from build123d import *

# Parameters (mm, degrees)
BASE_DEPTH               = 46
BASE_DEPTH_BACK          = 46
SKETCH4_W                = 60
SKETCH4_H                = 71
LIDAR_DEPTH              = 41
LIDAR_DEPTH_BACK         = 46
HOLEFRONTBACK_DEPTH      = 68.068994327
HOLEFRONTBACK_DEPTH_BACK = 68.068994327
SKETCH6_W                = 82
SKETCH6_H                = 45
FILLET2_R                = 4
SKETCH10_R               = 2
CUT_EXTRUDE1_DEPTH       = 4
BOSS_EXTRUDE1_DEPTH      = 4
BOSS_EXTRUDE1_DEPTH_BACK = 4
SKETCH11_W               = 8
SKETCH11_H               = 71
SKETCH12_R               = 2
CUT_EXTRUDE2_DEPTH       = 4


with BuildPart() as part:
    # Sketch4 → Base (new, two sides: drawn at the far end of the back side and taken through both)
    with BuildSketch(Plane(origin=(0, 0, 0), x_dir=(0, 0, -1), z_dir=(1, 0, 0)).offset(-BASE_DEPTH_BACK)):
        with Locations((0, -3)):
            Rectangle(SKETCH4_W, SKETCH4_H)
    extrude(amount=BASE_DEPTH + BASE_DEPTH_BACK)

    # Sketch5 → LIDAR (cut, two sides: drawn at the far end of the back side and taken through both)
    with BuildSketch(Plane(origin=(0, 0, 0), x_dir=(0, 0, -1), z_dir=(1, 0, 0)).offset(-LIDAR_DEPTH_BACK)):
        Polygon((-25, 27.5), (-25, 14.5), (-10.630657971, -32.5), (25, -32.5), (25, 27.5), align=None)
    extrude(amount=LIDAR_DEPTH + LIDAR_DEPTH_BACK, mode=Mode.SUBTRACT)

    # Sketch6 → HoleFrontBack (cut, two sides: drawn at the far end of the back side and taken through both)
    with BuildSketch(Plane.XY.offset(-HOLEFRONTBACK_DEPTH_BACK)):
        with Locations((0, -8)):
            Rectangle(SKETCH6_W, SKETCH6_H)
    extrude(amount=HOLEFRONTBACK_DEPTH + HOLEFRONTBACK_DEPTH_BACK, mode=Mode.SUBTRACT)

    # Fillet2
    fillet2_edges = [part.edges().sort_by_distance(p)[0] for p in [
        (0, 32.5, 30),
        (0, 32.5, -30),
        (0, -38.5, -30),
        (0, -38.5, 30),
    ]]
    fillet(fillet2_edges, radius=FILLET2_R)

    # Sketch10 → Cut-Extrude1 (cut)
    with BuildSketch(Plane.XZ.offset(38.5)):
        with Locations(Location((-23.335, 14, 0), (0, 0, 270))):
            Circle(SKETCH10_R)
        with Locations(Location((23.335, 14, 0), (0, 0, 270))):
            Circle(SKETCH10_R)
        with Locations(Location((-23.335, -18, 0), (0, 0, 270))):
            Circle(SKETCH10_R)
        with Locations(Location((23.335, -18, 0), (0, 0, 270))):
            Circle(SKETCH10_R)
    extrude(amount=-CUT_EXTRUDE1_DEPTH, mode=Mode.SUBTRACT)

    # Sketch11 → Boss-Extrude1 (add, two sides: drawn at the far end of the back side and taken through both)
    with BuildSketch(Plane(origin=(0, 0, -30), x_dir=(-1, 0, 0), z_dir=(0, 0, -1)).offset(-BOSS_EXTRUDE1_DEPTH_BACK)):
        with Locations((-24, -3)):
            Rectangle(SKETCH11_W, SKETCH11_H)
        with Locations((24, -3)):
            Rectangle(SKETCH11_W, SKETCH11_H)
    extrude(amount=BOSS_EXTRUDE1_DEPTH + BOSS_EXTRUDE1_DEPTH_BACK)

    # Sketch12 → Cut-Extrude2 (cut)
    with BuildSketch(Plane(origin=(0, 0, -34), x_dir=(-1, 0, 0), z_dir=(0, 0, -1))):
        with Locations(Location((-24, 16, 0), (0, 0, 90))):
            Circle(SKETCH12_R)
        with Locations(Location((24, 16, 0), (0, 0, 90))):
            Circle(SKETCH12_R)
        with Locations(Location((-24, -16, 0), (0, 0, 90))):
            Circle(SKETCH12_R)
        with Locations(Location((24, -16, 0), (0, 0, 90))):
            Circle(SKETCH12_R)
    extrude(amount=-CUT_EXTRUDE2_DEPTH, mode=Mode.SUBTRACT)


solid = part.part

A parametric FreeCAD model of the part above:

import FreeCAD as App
import Part
import Sketcher
Q = App.Units.Quantity


def edges_at(feature, points):
    """Names of the edges that pass closest to the given points."""
    edges = feature.Shape.Edges
    near = lambda p: min(range(len(edges)), key=lambda i: edges[i].distToShape(Part.Vertex(*p))[0])
    return sorted({f"Edge{near(p) + 1}" for p in points})


def add_polygon(sketch, points):
    """Adds a closed chain of lines whose ends are joined by coincident constraints."""
    first, n = sketch.GeometryCount, len(points)
    for a, b in zip(points, points[1:] + points[:1]):
        sketch.addGeometry(Part.LineSegment(App.Vector(*a, 0), App.Vector(*b, 0)), False)
    for i in range(n):
        sketch.addConstraint(Sketcher.Constraint("Coincident", first + i, 2, first + (i + 1) % n, 1))

doc = App.newDocument("Part")
body = doc.addObject("PartDesign::Body", "Body")

# Sketch on YZ plane
sketch1 = body.newObject("Sketcher::SketchObject", "Sketch")
sketch1.AttachmentSupport = (doc.getObject("YZ_Plane"), [""])
sketch1.MapMode = "FlatFace"
add_polygon(sketch1, [(32, 30), (-38, 30), (-38, -30), (32, -30)])  # lines 0-3
sketch1.addConstraint(Sketcher.Constraint("Horizontal", 0))
sketch1.addConstraint(Sketcher.Constraint("Vertical", 1))
sketch1.addConstraint(Sketcher.Constraint("Horizontal", 2))
sketch1.addConstraint(Sketcher.Constraint("Vertical", 3))
sketch1.addConstraint(Sketcher.Constraint("DistanceX", 0, 2, 0, 1, 71.0))
sketch1.addConstraint(Sketcher.Constraint("DistanceY", 1, 2, 1, 1, 60.0))
sketch1.addConstraint(Sketcher.Constraint("DistanceY", -1, 1, 0, 2, 30.0))
sketch1.addConstraint(Sketcher.Constraint("DistanceX", 0, 2, -1, 1, 38.5))
pad1 = body.newObject("PartDesign::Pad", "Pad")
pad1.Profile = sketch1
pad1.Type = "TwoLengths"
pad1.Length = 46
pad1.Length2 = 46

# Sketch on YZ plane
sketch2 = body.newObject("Sketcher::SketchObject", "Sketch001")
sketch2.AttachmentSupport = (doc.getObject("YZ_Plane"), [""])
sketch2.MapMode = "FlatFace"
add_polygon(sketch2, [(28, 25), (14, 25), (-32, 11), (-32, -25), (28, -25)])  # lines 0-4
sketch2.addConstraint(Sketcher.Constraint("Horizontal", 0))
sketch2.addConstraint(Sketcher.Constraint("Vertical", 2))
sketch2.addConstraint(Sketcher.Constraint("Horizontal", 3))
sketch2.addConstraint(Sketcher.Constraint("Vertical", 4))
sketch2.addConstraint(Sketcher.Constraint("DistanceX", 0, 2, 0, 1, 13.0))
sketch2.addConstraint(Sketcher.Constraint("DistanceX", 3, 1, 3, 2, 60.0))
sketch2.addConstraint(Sketcher.Constraint("DistanceY", 4, 1, 4, 2, 50.0))
sketch2.addConstraint(Sketcher.Constraint("Angle", 1, Q("-163 deg")))
sketch2.addConstraint(Sketcher.Constraint("DistanceY", -1, 1, 0, 2, 25.0))
sketch2.addConstraint(Sketcher.Constraint("DistanceX", -1, 1, 0, 2, 14.5))
pocket1 = body.newObject("PartDesign::Pocket", "Pocket")
pocket1.Profile = sketch2
pocket1.Type = "TwoLengths"
pocket1.Length = 41
pocket1.Length2 = 46
pocket1.Reversed = True

# Sketch on XY plane
sketch3 = body.newObject("Sketcher::SketchObject", "Sketch002")
sketch3.AttachmentSupport = (doc.getObject("XY_Plane"), [""])
sketch3.MapMode = "FlatFace"
add_polygon(sketch3, [(-41, 14), (-41, -30), (41, -30), (41, 14)])  # lines 0-3
sketch3.addConstraint(Sketcher.Constraint("Vertical", 0))
sketch3.addConstraint(Sketcher.Constraint("Horizontal", 1))
sketch3.addConstraint(Sketcher.Constraint("Vertical", 2))
sketch3.addConstraint(Sketcher.Constraint("Horizontal", 3))
sketch3.addConstraint(Sketcher.Constraint("DistanceX", 1, 1, 1, 2, 82.0))
sketch3.addConstraint(Sketcher.Constraint("DistanceY", 0, 2, 0, 1, 45.0))
sketch3.addConstraint(Sketcher.Constraint("DistanceX", 0, 2, -1, 1, 41.0))
sketch3.addConstraint(Sketcher.Constraint("DistanceY", 0, 2, -1, 1, 30.5))
pocket2 = body.newObject("PartDesign::Pocket", "Pocket001")
pocket2.Profile = sketch3
pocket2.Type = "ThroughAll"
pocket2.Midplane = True
doc.recompute()

fillet = body.newObject("PartDesign::Fillet", "Fillet")
fillet.Base = (pocket2, edges_at(pocket2, [
    (0, 32.5, 30),
    (0, 32.5, -30),
    (0, -38.5, -30),
    (0, -38.5, 30),
]))
fillet.Radius = 4

# Sketch on XZ plane
sketch4 = body.newObject("Sketcher::SketchObject", "Sketch003")
sketch4.AttachmentSupport = (doc.getObject("XZ_Plane"), [""])
sketch4.MapMode = "FlatFace"
sketch4.AttachmentOffset = App.Placement(App.Vector(0, 0, 38.5), App.Rotation())
sketch4.addGeometry(Part.Circle(App.Vector(-23.3, 14, 0), App.Vector(0, 0, 1), 2), False)
sketch4.addGeometry(Part.Circle(App.Vector(23.3, 14, 0), App.Vector(0, 0, 1), 2), False)
sketch4.addGeometry(Part.Circle(App.Vector(-23.3, -18, 0), App.Vector(0, 0, 1), 2), False)
sketch4.addGeometry(Part.Circle(App.Vector(23.3, -18, 0), App.Vector(0, 0, 1), 2), False)
sketch4.addConstraint(Sketcher.Constraint("Equal", 0, 1))
sketch4.addConstraint(Sketcher.Constraint("Equal", 1, 2))
sketch4.addConstraint(Sketcher.Constraint("Equal", 2, 3))
sketch4.addConstraint(Sketcher.Constraint("Symmetric", 0, 3, 1, 3, -2))
sketch4.addConstraint(Sketcher.Constraint("Symmetric", 2, 3, 3, 3, -2))
sketch4.addConstraint(Sketcher.Constraint("Vertical", 0, 3, 2, 3))
sketch4.addConstraint(Sketcher.Constraint("Diameter", 0, 4.0))
sketch4.addConstraint(Sketcher.Constraint("DistanceY", -1, 1, 0, 3, 14.0))
sketch4.addConstraint(Sketcher.Constraint("DistanceY", 2, 3, -1, 1, 18.0))
sketch4.addConstraint(Sketcher.Constraint("DistanceX", 0, 3, 1, 3, 46.67))
pocket3 = body.newObject("PartDesign::Pocket", "Pocket002")
pocket3.Profile = sketch4
pocket3.Length = 4

# Sketch on XY plane
sketch5 = body.newObject("Sketcher::SketchObject", "Sketch004")
sketch5.AttachmentSupport = (doc.getObject("XY_Plane"), [""])
sketch5.MapMode = "FlatFace"
sketch5.AttachmentOffset = App.Placement(App.Vector(0, 0, -30), App.Rotation())
add_polygon(sketch5, [(28, 32), (28, -38), (20, -38), (20, 32)])  # lines 0-3
add_polygon(sketch5, [(-20, 32), (-20, -38), (-28, -38), (-28, 32)])  # lines 4-7
sketch5.addConstraint(Sketcher.Constraint("Vertical", 0))
sketch5.addConstraint(Sketcher.Constraint("Horizontal", 1))
sketch5.addConstraint(Sketcher.Constraint("Vertical", 2))
sketch5.addConstraint(Sketcher.Constraint("Horizontal", 3))
sketch5.addConstraint(Sketcher.Constraint("Vertical", 4))
sketch5.addConstraint(Sketcher.Constraint("Horizontal", 5))
sketch5.addConstraint(Sketcher.Constraint("Vertical", 6))
sketch5.addConstraint(Sketcher.Constraint("Horizontal", 7))
sketch5.addConstraint(Sketcher.Constraint("Symmetric", 1, 2, 4, 2, -2))
sketch5.addConstraint(Sketcher.Constraint("Symmetric", 3, 2, 6, 2, -2))
sketch5.addConstraint(Sketcher.Constraint("DistanceX", 1, 2, 1, 1, 8.0))
sketch5.addConstraint(Sketcher.Constraint("DistanceY", 0, 2, 0, 1, 71.0))
sketch5.addConstraint(Sketcher.Constraint("DistanceX", -1, 1, 0, 2, 28.0))
sketch5.addConstraint(Sketcher.Constraint("DistanceY", 0, 2, -1, 1, 38.5))
pad2 = body.newObject("PartDesign::Pad", "Pad001")
pad2.Profile = sketch5
pad2.Type = "TwoLengths"
pad2.Length = 4
pad2.Length2 = 4
pad2.Reversed = True

# Sketch on XY plane
sketch6 = body.newObject("Sketcher::SketchObject", "Sketch005")
sketch6.AttachmentSupport = (doc.getObject("XY_Plane"), [""])
sketch6.MapMode = "FlatFace"
sketch6.AttachmentOffset = App.Placement(App.Vector(0, 0, -34), App.Rotation())
sketch6.addGeometry(Part.Circle(App.Vector(24, 16, 0), App.Vector(0, 0, 1), 2), False)
sketch6.addGeometry(Part.Circle(App.Vector(-24, 16, 0), App.Vector(0, 0, 1), 2), False)
sketch6.addGeometry(Part.Circle(App.Vector(24, -16, 0), App.Vector(0, 0, 1), 2), False)
sketch6.addGeometry(Part.Circle(App.Vector(-24, -16, 0), App.Vector(0, 0, 1), 2), False)
sketch6.addConstraint(Sketcher.Constraint("Equal", 0, 1))
sketch6.addConstraint(Sketcher.Constraint("Equal", 1, 2))
sketch6.addConstraint(Sketcher.Constraint("Equal", 2, 3))
sketch6.addConstraint(Sketcher.Constraint("Symmetric", 1, 3, 2, 3, -1, 1))
sketch6.addConstraint(Sketcher.Constraint("Symmetric", 0, 3, 3, 3, -1, 1))
sketch6.addConstraint(Sketcher.Constraint("Symmetric", 0, 3, 1, 3, -2))
sketch6.addConstraint(Sketcher.Constraint("Diameter", 0, 4.0))
sketch6.addConstraint(Sketcher.Constraint("DistanceX", -1, 1, 0, 3, 24.0))
sketch6.addConstraint(Sketcher.Constraint("DistanceY", -1, 1, 0, 3, 16.0))
pocket4 = body.newObject("PartDesign::Pocket", "Pocket003")
pocket4.Profile = sketch6
pocket4.Length = 4
pocket4.Reversed = True

doc.recompute()
